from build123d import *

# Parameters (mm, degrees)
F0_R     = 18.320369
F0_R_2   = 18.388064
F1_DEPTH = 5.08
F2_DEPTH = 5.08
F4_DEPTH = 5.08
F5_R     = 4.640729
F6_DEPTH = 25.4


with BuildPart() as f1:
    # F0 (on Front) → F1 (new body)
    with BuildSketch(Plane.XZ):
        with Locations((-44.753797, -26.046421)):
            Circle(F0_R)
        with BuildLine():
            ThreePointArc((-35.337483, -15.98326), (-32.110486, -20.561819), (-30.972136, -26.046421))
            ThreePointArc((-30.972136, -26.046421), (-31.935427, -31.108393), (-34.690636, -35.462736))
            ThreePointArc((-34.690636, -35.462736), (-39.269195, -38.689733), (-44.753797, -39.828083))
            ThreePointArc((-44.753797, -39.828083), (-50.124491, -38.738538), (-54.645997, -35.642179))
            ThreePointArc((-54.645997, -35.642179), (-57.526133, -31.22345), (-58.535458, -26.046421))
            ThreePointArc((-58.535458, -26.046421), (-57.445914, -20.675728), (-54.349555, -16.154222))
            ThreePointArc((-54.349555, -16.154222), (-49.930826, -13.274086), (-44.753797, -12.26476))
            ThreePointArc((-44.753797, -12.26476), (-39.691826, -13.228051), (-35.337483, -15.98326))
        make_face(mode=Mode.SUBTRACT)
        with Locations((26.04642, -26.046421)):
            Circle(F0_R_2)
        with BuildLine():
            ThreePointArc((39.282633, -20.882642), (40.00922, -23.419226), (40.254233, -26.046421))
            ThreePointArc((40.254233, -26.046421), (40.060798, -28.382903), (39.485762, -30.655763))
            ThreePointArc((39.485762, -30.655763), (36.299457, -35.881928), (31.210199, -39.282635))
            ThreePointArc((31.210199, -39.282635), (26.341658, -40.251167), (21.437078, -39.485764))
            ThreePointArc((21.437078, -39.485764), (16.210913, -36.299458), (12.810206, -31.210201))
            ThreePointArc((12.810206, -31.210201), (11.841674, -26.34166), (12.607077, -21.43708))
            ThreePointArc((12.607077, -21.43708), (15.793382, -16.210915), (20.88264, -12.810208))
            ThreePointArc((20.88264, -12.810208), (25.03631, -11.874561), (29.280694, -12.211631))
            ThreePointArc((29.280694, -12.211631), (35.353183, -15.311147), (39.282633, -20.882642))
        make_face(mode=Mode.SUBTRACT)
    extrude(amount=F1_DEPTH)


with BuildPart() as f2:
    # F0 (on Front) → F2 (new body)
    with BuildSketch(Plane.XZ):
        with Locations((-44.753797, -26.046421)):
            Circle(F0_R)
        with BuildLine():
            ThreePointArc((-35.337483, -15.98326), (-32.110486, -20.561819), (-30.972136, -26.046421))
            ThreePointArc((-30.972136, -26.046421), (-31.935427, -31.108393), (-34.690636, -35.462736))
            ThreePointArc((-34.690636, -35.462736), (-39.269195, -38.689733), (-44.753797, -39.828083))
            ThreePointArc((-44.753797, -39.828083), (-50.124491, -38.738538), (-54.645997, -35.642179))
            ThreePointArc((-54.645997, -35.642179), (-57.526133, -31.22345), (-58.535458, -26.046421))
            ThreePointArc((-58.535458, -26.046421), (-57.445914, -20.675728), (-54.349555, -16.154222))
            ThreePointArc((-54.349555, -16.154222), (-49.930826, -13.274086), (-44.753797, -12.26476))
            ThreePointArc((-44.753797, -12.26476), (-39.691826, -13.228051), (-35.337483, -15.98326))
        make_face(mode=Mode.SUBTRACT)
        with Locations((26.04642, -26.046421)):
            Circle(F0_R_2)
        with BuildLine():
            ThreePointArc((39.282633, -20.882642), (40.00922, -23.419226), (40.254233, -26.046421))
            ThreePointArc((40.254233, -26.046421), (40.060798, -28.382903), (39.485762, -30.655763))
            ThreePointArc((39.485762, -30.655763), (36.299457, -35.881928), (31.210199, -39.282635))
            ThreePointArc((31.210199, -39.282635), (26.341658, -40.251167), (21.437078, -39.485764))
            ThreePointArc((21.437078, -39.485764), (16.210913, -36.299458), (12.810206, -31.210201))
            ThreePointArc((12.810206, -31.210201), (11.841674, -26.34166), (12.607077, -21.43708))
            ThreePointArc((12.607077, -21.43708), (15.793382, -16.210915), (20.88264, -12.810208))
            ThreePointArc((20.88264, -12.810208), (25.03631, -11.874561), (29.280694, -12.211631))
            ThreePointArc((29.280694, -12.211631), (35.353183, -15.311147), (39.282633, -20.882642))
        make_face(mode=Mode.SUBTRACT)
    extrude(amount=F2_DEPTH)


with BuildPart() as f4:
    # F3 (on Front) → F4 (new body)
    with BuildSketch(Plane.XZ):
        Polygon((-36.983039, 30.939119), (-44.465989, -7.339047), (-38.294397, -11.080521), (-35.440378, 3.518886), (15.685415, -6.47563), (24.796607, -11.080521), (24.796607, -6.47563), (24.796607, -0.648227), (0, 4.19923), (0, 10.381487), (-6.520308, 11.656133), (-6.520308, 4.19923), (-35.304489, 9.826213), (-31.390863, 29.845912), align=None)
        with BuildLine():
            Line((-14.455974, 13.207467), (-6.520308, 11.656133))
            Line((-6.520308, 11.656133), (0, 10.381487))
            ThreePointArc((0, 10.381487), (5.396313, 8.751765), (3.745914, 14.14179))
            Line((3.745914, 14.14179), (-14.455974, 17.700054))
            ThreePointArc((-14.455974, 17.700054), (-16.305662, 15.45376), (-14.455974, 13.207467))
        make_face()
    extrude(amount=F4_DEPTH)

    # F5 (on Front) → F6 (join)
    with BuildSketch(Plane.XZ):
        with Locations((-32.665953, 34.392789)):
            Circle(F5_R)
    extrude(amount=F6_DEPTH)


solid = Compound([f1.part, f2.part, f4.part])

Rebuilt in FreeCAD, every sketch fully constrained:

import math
import FreeCAD as App
import Part
import Sketcher
Q = App.Units.Quantity

doc = App.newDocument("Part")
body = doc.addObject("PartDesign::Body", "Body")
body.AllowCompound = True

sketch1 = doc.addObject("Sketcher::SketchObject", "Sketch")
body.addObject(sketch1)
sketch1.AttachmentSupport = (doc.XZ_Plane, [""])
sketch1.MapMode = "FlatFace"
sketch1.addGeometry(Part.Circle(App.Vector(-44.753797, -26.046421, 0), App.Vector(0, 0, 1), 18.320369), False)
sketch1.addGeometry(Part.ArcOfCircle(Part.Circle(App.Vector(-44.753801, -26.04643, 0), App.Vector(0, 0, 1), 13.78167), math.radians(46.901914), math.radians(89.999984)), False)
sketch1.addGeometry(Part.ArcOfCircle(Part.Circle(App.Vector(-44.7538, -26.046422, 0), App.Vector(0, 0, 1), 13.781664), math.radians(0.000005), math.radians(46.901894)), False)
sketch1.addGeometry(Part.ArcOfCircle(Part.Circle(App.Vector(-44.753806, -26.046418, 0), App.Vector(0, 0, 1), 13.78167), math.radians(-43.098086), math.radians(-0.000011)), False)
sketch1.addGeometry(Part.ArcOfCircle(Part.Circle(App.Vector(-44.753798, -26.046419, 0), App.Vector(0, 0, 1), 13.781664), math.radians(-89.999995), math.radians(-43.098106)), False)
sketch1.addGeometry(Part.ArcOfCircle(Part.Circle(App.Vector(-44.753794, -26.046416, 0), App.Vector(0, 0, 1), 13.781667), math.radians(-135.871484), math.radians(-90.000012)), False)
sketch1.addGeometry(Part.ArcOfCircle(Part.Circle(App.Vector(-44.753801, -26.046423, 0), App.Vector(0, 0, 1), 13.781657), math.radians(179.99999), math.radians(224.128515)), False)
sketch1.addGeometry(Part.ArcOfCircle(Part.Circle(App.Vector(-44.753798, -26.046421, 0), App.Vector(0, 0, 1), 13.78166), math.radians(134.128511), math.radians(179.999999)), False)
sketch1.addGeometry(Part.ArcOfCircle(Part.Circle(App.Vector(-44.753796, -26.046423, 0), App.Vector(0, 0, 1), 13.781663), math.radians(90.000006), math.radians(134.12851)), False)
sketch1.addGeometry(Part.Circle(App.Vector(26.04642, -26.046421, 0), App.Vector(0, 0, 1), 18.388064), False)
sketch1.addGeometry(Part.ArcOfCircle(Part.Circle(App.Vector(26.04642, -26.046421, 0), App.Vector(0, 0, 1), 14.207813), math.radians(21.312006), math.radians(76.841801)), False)
sketch1.addGeometry(Part.ArcOfCircle(Part.Circle(App.Vector(26.046396, -26.046426, 0), App.Vector(0, 0, 1), 14.207837), math.radians(0.000019), math.radians(21.311988)), False)
sketch1.addGeometry(Part.ArcOfCircle(Part.Circle(App.Vector(26.046395, -26.046417, 0), App.Vector(0, 0, 1), 14.207838), math.radians(-18.930609), math.radians(-0.000018)), False)
sketch1.addGeometry(Part.ArcOfCircle(Part.Circle(App.Vector(26.046421, -26.046423, 0), App.Vector(0, 0, 1), 14.207812), math.radians(-68.687995), math.radians(-18.930617)), False)
sketch1.addGeometry(Part.ArcOfCircle(Part.Circle(App.Vector(26.04642, -26.046421, 0), App.Vector(0, 0, 1), 14.207814), math.radians(-108.930623), math.radians(-68.687996)), False)
sketch1.addGeometry(Part.ArcOfCircle(Part.Circle(App.Vector(26.046423, -26.046417, 0), App.Vector(0, 0, 1), 14.207819), math.radians(-158.687982), math.radians(-108.93063)), False)
sketch1.addGeometry(Part.ArcOfCircle(Part.Circle(App.Vector(26.04642, -26.046422, 0), App.Vector(0, 0, 1), 14.207814), math.radians(161.069377), math.radians(201.312004)), False)
sketch1.addGeometry(Part.ArcOfCircle(Part.Circle(App.Vector(26.046418, -26.04642, 0), App.Vector(0, 0, 1), 14.207812), math.radians(111.312005), math.radians(161.069383)), False)
sketch1.addGeometry(Part.ArcOfCircle(Part.Circle(App.Vector(26.04642, -26.046431, 0), App.Vector(0, 0, 1), 14.207822), math.radians(76.841809), math.radians(111.311994)), False)
sketch1.addConstraint(Sketcher.Constraint("Coincident", 1, 1, 2, 2))
sketch1.addConstraint(Sketcher.Constraint("Coincident", 2, 1, 3, 2))
sketch1.addConstraint(Sketcher.Constraint("Coincident", 3, 1, 4, 2))
sketch1.addConstraint(Sketcher.Constraint("Coincident", 4, 1, 5, 2))
sketch1.addConstraint(Sketcher.Constraint("Coincident", 5, 1, 6, 2))
sketch1.addConstraint(Sketcher.Constraint("Coincident", 6, 1, 7, 2))
sketch1.addConstraint(Sketcher.Constraint("Coincident", 7, 1, 8, 2))
sketch1.addConstraint(Sketcher.Constraint("Coincident", 8, 1, 1, 2))
sketch1.addConstraint(Sketcher.Constraint("Coincident", 10, 1, 11, 2))
sketch1.addConstraint(Sketcher.Constraint("Coincident", 11, 1, 12, 2))
sketch1.addConstraint(Sketcher.Constraint("Coincident", 12, 1, 13, 2))
sketch1.addConstraint(Sketcher.Constraint("Coincident", 13, 1, 14, 2))
sketch1.addConstraint(Sketcher.Constraint("Coincident", 14, 1, 15, 2))
sketch1.addConstraint(Sketcher.Constraint("Coincident", 15, 1, 16, 2))
sketch1.addConstraint(Sketcher.Constraint("Coincident", 16, 1, 17, 2))
sketch1.addConstraint(Sketcher.Constraint("Coincident", 17, 1, 18, 2))
sketch1.addConstraint(Sketcher.Constraint("Coincident", 18, 1, 10, 2))
sketch1.addConstraint(Sketcher.Constraint("Coincident", 2, 3, 0, 3))
sketch1.addConstraint(Sketcher.Constraint("Coincident", 3, 3, 0, 3))
sketch1.addConstraint(Sketcher.Constraint("Coincident", 4, 3, 0, 3))
sketch1.addConstraint(Sketcher.Constraint("Coincident", 5, 3, 0, 3))
sketch1.addConstraint(Sketcher.Constraint("Coincident", 6, 3, 0, 3))
sketch1.addConstraint(Sketcher.Constraint("Coincident", 7, 3, 0, 3))
sketch1.addConstraint(Sketcher.Constraint("Coincident", 8, 3, 0, 3))
sketch1.addConstraint(Sketcher.Constraint("Coincident", 10, 3, 9, 3))
sketch1.addConstraint(Sketcher.Constraint("Coincident", 12, 3, 11, 3))
sketch1.addConstraint(Sketcher.Constraint("Coincident", 13, 3, 9, 3))
sketch1.addConstraint(Sketcher.Constraint("Coincident", 14, 3, 9, 3))
sketch1.addConstraint(Sketcher.Constraint("Coincident", 15, 3, 9, 3))
sketch1.addConstraint(Sketcher.Constraint("Coincident", 16, 3, 9, 3))
sketch1.addConstraint(Sketcher.Constraint("Coincident", 17, 3, 9, 3))
sketch1.addConstraint(Sketcher.Constraint("Coincident", 18, 3, 9, 3))
sketch1.addConstraint(Sketcher.Constraint("Radius", 1, 13.78167))
sketch1.addConstraint(Sketcher.Constraint("Radius", 3, 13.78167))
sketch1.addConstraint(Sketcher.Constraint("Radius", 13, 14.207812))
sketch1.addConstraint(Sketcher.Constraint("Diameter", 0, 36.640738))
sketch1.addConstraint(Sketcher.Constraint("Diameter", 9, 36.776128))
sketch1.addConstraint(Sketcher.Constraint("Radius", 11, 14.207837))
sketch1.addConstraint(Sketcher.Constraint("DistanceX", 1, 3, -1, 1, 44.753801))
sketch1.addConstraint(Sketcher.Constraint("DistanceX", -1, 1, 13, 1, 31.210199))
sketch1.addConstraint(Sketcher.Constraint("DistanceY", 15, 1, -1, 1, 31.210201))
sketch1.addConstraint(Sketcher.Constraint("DistanceX", 3, 1, 2, 1, 3.7185))
sketch1.addConstraint(Sketcher.Constraint("DistanceX", 5, 1, 4, 1, 9.8922))
sketch1.addConstraint(Sketcher.Constraint("DistanceY", 6, 1, 7, 1, 9.892199))
sketch1.addConstraint(Sketcher.Constraint("DistanceY", 6, 3, 7, 1, 9.892201))
sketch1.addConstraint(Sketcher.Constraint("DistanceY", 1, 1, 8, 1, 3.7185))
sketch1.addConstraint(Sketcher.Constraint("DistanceX", 10, 1, 11, 1, 0.9716))
sketch1.addConstraint(Sketcher.Constraint("DistanceY", 0, 3, -1, 1, 26.046421))
sketch1.addConstraint(Sketcher.Constraint("DistanceX", -1, 1, 9, 3, 26.04642))
sketch1.addConstraint(Sketcher.Constraint("DistanceY", 9, 3, -1, 1, 26.046421))
sketch1.addConstraint(Sketcher.Constraint("DistanceY", 2, 1, -1, 1, 26.046421))
sketch1.addConstraint(Sketcher.Constraint("DistanceY", 5, 1, -1, 1, 35.642179))
sketch1.addConstraint(Sketcher.Constraint("DistanceY", 11, 1, -1, 1, 26.046421))
sketch1.addConstraint(Sketcher.Constraint("DistanceX", -1, 1, 14, 1, 21.437078))
sketch1.addConstraint(Sketcher.Constraint("DistanceY", 16, 1, -1, 1, 21.43708))
sketch1.addConstraint(Sketcher.Constraint("DistanceX", -1, 1, 17, 1, 20.88264))
sketch1.addConstraint(Sketcher.Constraint("DistanceY", 18, 1, -1, 1, 12.211631))
sketch1.addConstraint(Sketcher.Constraint("DistanceX", 7, 1, 8, 1, 9.595758))
sketch1.addConstraint(Sketcher.Constraint("DistanceX", 12, 1, 11, 1, 0.768471))
pad1 = doc.addObject("PartDesign::Pad", "Pad")
body.addObject(pad1)
pad1.Profile = sketch1
pad1.Length = Q("0.2 in")
body2 = doc.addObject("PartDesign::Body", "Body001")
body2.AllowCompound = True

sketch2 = doc.addObject("Sketcher::SketchObject", "Sketch001")
body2.addObject(sketch2)
sketch2.AttachmentSupport = (doc.getObject("XZ_Plane001"), [""])
sketch2.MapMode = "FlatFace"
sketch2.addGeometry(Part.Circle(App.Vector(-44.753797, -26.046421, 0), App.Vector(0, 0, 1), 18.320369), False)
sketch2.addGeometry(Part.ArcOfCircle(Part.Circle(App.Vector(-44.753801, -26.04643, 0), App.Vector(0, 0, 1), 13.78167), math.radians(46.901914), math.radians(89.999984)), False)
sketch2.addGeometry(Part.ArcOfCircle(Part.Circle(App.Vector(-44.7538, -26.046422, 0), App.Vector(0, 0, 1), 13.781664), math.radians(0.000005), math.radians(46.901894)), False)
sketch2.addGeometry(Part.ArcOfCircle(Part.Circle(App.Vector(-44.753806, -26.046418, 0), App.Vector(0, 0, 1), 13.78167), math.radians(-43.098086), math.radians(-0.000011)), False)
sketch2.addGeometry(Part.ArcOfCircle(Part.Circle(App.Vector(-44.753798, -26.046419, 0), App.Vector(0, 0, 1), 13.781664), math.radians(-89.999995), math.radians(-43.098106)), False)
sketch2.addGeometry(Part.ArcOfCircle(Part.Circle(App.Vector(-44.753794, -26.046416, 0), App.Vector(0, 0, 1), 13.781667), math.radians(-135.871484), math.radians(-90.000012)), False)
sketch2.addGeometry(Part.ArcOfCircle(Part.Circle(App.Vector(-44.753801, -26.046423, 0), App.Vector(0, 0, 1), 13.781657), math.radians(179.99999), math.radians(224.128515)), False)
sketch2.addGeometry(Part.ArcOfCircle(Part.Circle(App.Vector(-44.753798, -26.046421, 0), App.Vector(0, 0, 1), 13.78166), math.radians(134.128511), math.radians(179.999999)), False)
sketch2.addGeometry(Part.ArcOfCircle(Part.Circle(App.Vector(-44.753796, -26.046423, 0), App.Vector(0, 0, 1), 13.781663), math.radians(90.000006), math.radians(134.12851)), False)
sketch2.addGeometry(Part.Circle(App.Vector(26.04642, -26.046421, 0), App.Vector(0, 0, 1), 18.388064), False)
sketch2.addGeometry(Part.ArcOfCircle(Part.Circle(App.Vector(26.04642, -26.046421, 0), App.Vector(0, 0, 1), 14.207813), math.radians(21.312006), math.radians(76.841801)), False)
sketch2.addGeometry(Part.ArcOfCircle(Part.Circle(App.Vector(26.046396, -26.046426, 0), App.Vector(0, 0, 1), 14.207837), math.radians(0.000019), math.radians(21.311988)), False)
sketch2.addGeometry(Part.ArcOfCircle(Part.Circle(App.Vector(26.046395, -26.046417, 0), App.Vector(0, 0, 1), 14.207838), math.radians(-18.930609), math.radians(-0.000018)), False)
sketch2.addGeometry(Part.ArcOfCircle(Part.Circle(App.Vector(26.046421, -26.046423, 0), App.Vector(0, 0, 1), 14.207812), math.radians(-68.687995), math.radians(-18.930617)), False)
sketch2.addGeometry(Part.ArcOfCircle(Part.Circle(App.Vector(26.04642, -26.046421, 0), App.Vector(0, 0, 1), 14.207814), math.radians(-108.930623), math.radians(-68.687996)), False)
sketch2.addGeometry(Part.ArcOfCircle(Part.Circle(App.Vector(26.046423, -26.046417, 0), App.Vector(0, 0, 1), 14.207819), math.radians(-158.687982), math.radians(-108.93063)), False)
sketch2.addGeometry(Part.ArcOfCircle(Part.Circle(App.Vector(26.04642, -26.046422, 0), App.Vector(0, 0, 1), 14.207814), math.radians(161.069377), math.radians(201.312004)), False)
sketch2.addGeometry(Part.ArcOfCircle(Part.Circle(App.Vector(26.046418, -26.04642, 0), App.Vector(0, 0, 1), 14.207812), math.radians(111.312005), math.radians(161.069383)), False)
sketch2.addGeometry(Part.ArcOfCircle(Part.Circle(App.Vector(26.04642, -26.046431, 0), App.Vector(0, 0, 1), 14.207822), math.radians(76.841809), math.radians(111.311994)), False)
sketch2.addConstraint(Sketcher.Constraint("Coincident", 1, 1, 2, 2))
sketch2.addConstraint(Sketcher.Constraint("Coincident", 2, 1, 3, 2))
sketch2.addConstraint(Sketcher.Constraint("Coincident", 3, 1, 4, 2))
sketch2.addConstraint(Sketcher.Constraint("Coincident", 4, 1, 5, 2))
sketch2.addConstraint(Sketcher.Constraint("Coincident", 5, 1, 6, 2))
sketch2.addConstraint(Sketcher.Constraint("Coincident", 6, 1, 7, 2))
sketch2.addConstraint(Sketcher.Constraint("Coincident", 7, 1, 8, 2))
sketch2.addConstraint(Sketcher.Constraint("Coincident", 8, 1, 1, 2))
sketch2.addConstraint(Sketcher.Constraint("Coincident", 10, 1, 11, 2))
sketch2.addConstraint(Sketcher.Constraint("Coincident", 11, 1, 12, 2))
sketch2.addConstraint(Sketcher.Constraint("Coincident", 12, 1, 13, 2))
sketch2.addConstraint(Sketcher.Constraint("Coincident", 13, 1, 14, 2))
sketch2.addConstraint(Sketcher.Constraint("Coincident", 14, 1, 15, 2))
sketch2.addConstraint(Sketcher.Constraint("Coincident", 15, 1, 16, 2))
sketch2.addConstraint(Sketcher.Constraint("Coincident", 16, 1, 17, 2))
sketch2.addConstraint(Sketcher.Constraint("Coincident", 17, 1, 18, 2))
sketch2.addConstraint(Sketcher.Constraint("Coincident", 18, 1, 10, 2))
sketch2.addConstraint(Sketcher.Constraint("Coincident", 2, 3, 0, 3))
sketch2.addConstraint(Sketcher.Constraint("Coincident", 3, 3, 0, 3))
sketch2.addConstraint(Sketcher.Constraint("Coincident", 4, 3, 0, 3))
sketch2.addConstraint(Sketcher.Constraint("Coincident", 5, 3, 0, 3))
sketch2.addConstraint(Sketcher.Constraint("Coincident", 6, 3, 0, 3))
sketch2.addConstraint(Sketcher.Constraint("Coincident", 7, 3, 0, 3))
sketch2.addConstraint(Sketcher.Constraint("Coincident", 8, 3, 0, 3))
sketch2.addConstraint(Sketcher.Constraint("Coincident", 10, 3, 9, 3))
sketch2.addConstraint(Sketcher.Constraint("Coincident", 12, 3, 11, 3))
sketch2.addConstraint(Sketcher.Constraint("Coincident", 13, 3, 9, 3))
sketch2.addConstraint(Sketcher.Constraint("Coincident", 14, 3, 9, 3))
sketch2.addConstraint(Sketcher.Constraint("Coincident", 15, 3, 9, 3))
sketch2.addConstraint(Sketcher.Constraint("Coincident", 16, 3, 9, 3))
sketch2.addConstraint(Sketcher.Constraint("Coincident", 17, 3, 9, 3))
sketch2.addConstraint(Sketcher.Constraint("Coincident", 18, 3, 9, 3))
sketch2.addConstraint(Sketcher.Constraint("Radius", 1, 13.78167))
sketch2.addConstraint(Sketcher.Constraint("Radius", 3, 13.78167))
sketch2.addConstraint(Sketcher.Constraint("Radius", 13, 14.207812))
sketch2.addConstraint(Sketcher.Constraint("Diameter", 0, 36.640738))
sketch2.addConstraint(Sketcher.Constraint("Diameter", 9, 36.776128))
sketch2.addConstraint(Sketcher.Constraint("Radius", 11, 14.207837))
sketch2.addConstraint(Sketcher.Constraint("DistanceX", 1, 3, -1, 1, 44.753801))
sketch2.addConstraint(Sketcher.Constraint("DistanceX", -1, 1, 13, 1, 31.210199))
sketch2.addConstraint(Sketcher.Constraint("DistanceY", 15, 1, -1, 1, 31.210201))
sketch2.addConstraint(Sketcher.Constraint("DistanceX", 3, 1, 2, 1, 3.7185))
sketch2.addConstraint(Sketcher.Constraint("DistanceX", 5, 1, 4, 1, 9.8922))
sketch2.addConstraint(Sketcher.Constraint("DistanceY", 6, 1, 7, 1, 9.892199))
sketch2.addConstraint(Sketcher.Constraint("DistanceY", 6, 3, 7, 1, 9.892201))
sketch2.addConstraint(Sketcher.Constraint("DistanceY", 1, 1, 8, 1, 3.7185))
sketch2.addConstraint(Sketcher.Constraint("DistanceX", 10, 1, 11, 1, 0.9716))
sketch2.addConstraint(Sketcher.Constraint("DistanceY", 0, 3, -1, 1, 26.046421))
sketch2.addConstraint(Sketcher.Constraint("DistanceX", -1, 1, 9, 3, 26.04642))
sketch2.addConstraint(Sketcher.Constraint("DistanceY", 9, 3, -1, 1, 26.046421))
sketch2.addConstraint(Sketcher.Constraint("DistanceY", 2, 1, -1, 1, 26.046421))
sketch2.addConstraint(Sketcher.Constraint("DistanceY", 5, 1, -1, 1, 35.642179))
sketch2.addConstraint(Sketcher.Constraint("DistanceY", 11, 1, -1, 1, 26.046421))
sketch2.addConstraint(Sketcher.Constraint("DistanceX", -1, 1, 14, 1, 21.437078))
sketch2.addConstraint(Sketcher.Constraint("DistanceY", 16, 1, -1, 1, 21.43708))
sketch2.addConstraint(Sketcher.Constraint("DistanceX", -1, 1, 17, 1, 20.88264))
sketch2.addConstraint(Sketcher.Constraint("DistanceY", 18, 1, -1, 1, 12.211631))
sketch2.addConstraint(Sketcher.Constraint("DistanceX", 7, 1, 8, 1, 9.595758))
sketch2.addConstraint(Sketcher.Constraint("DistanceX", 12, 1, 11, 1, 0.768471))
pad2 = doc.addObject("PartDesign::Pad", "Pad001")
body2.addObject(pad2)
pad2.Profile = sketch2
pad2.Length = Q("0.2 in")
body3 = doc.addObject("PartDesign::Body", "Body002")

sketch3 = doc.addObject("Sketcher::SketchObject", "Sketch002")
body3.addObject(sketch3)
sketch3.AttachmentSupport = (doc.getObject("XZ_Plane002"), [""])
sketch3.MapMode = "FlatFace"
sketch3.addGeometry(Part.LineSegment(App.Vector(-37, 30.9, 0), App.Vector(-44.5, -7.3, 0)), False)
sketch3.addGeometry(Part.LineSegment(App.Vector(-44.5, -7.3, 0), App.Vector(-38.3, -11.1, 0)), False)
sketch3.addGeometry(Part.LineSegment(App.Vector(-38.3, -11.1, 0), App.Vector(-35.4, 3.5, 0)), False)
sketch3.addGeometry(Part.LineSegment(App.Vector(-35.4, 3.5, 0), App.Vector(15.7, -6.5, 0)), False)
sketch3.addGeometry(Part.LineSegment(App.Vector(15.7, -6.5, 0), App.Vector(24.8, -11.1, 0)), False)
sketch3.addGeometry(Part.LineSegment(App.Vector(24.8, -11.1, 0), App.Vector(24.8, -0.6, 0)), False)
sketch3.addGeometry(Part.LineSegment(App.Vector(24.8, -0.6, 0), App.Vector(0, 4.2, 0)), False)
sketch3.addGeometry(Part.LineSegment(App.Vector(0, 4.2, 0), App.Vector(0, 10.4, 0)), False)
sketch3.addGeometry(Part.ArcOfCircle(Part.Circle(App.Vector(3.1, 11, 0), App.Vector(0, 0, 1), 3.2), math.radians(-169), math.radians(79)), False)
sketch3.addGeometry(Part.LineSegment(App.Vector(3.7, 14.1, 0), App.Vector(-14.5, 17.7, 0)), False)
sketch3.addGeometry(Part.ArcOfCircle(Part.Circle(App.Vector(-14, 15.5, 0), App.Vector(0, 0, 1), 2.3), math.radians(101), math.radians(259)), False)
sketch3.addGeometry(Part.LineSegment(App.Vector(-14.5, 13.2, 0), App.Vector(-6.5, 11.7, 0)), False)
sketch3.addGeometry(Part.LineSegment(App.Vector(-6.5, 11.7, 0), App.Vector(-6.5, 4.2, 0)), False)
sketch3.addGeometry(Part.LineSegment(App.Vector(-6.5, 4.2, 0), App.Vector(-35.3, 9.8, 0)), False)
sketch3.addGeometry(Part.LineSegment(App.Vector(-35.3, 9.8, 0), App.Vector(-31.4, 29.8, 0)), False)
sketch3.addGeometry(Part.LineSegment(App.Vector(-31.4, 29.8, 0), App.Vector(-37, 30.9, 0)), False)
sketch3.addConstraint(Sketcher.Constraint("Coincident", 0, 2, 1, 1))
sketch3.addConstraint(Sketcher.Constraint("Coincident", 1, 2, 2, 1))
sketch3.addConstraint(Sketcher.Constraint("Coincident", 2, 2, 3, 1))
sketch3.addConstraint(Sketcher.Constraint("Coincident", 3, 2, 4, 1))
sketch3.addConstraint(Sketcher.Constraint("Coincident", 4, 2, 5, 1))
sketch3.addConstraint(Sketcher.Constraint("Coincident", 5, 2, 6, 1))
sketch3.addConstraint(Sketcher.Constraint("Coincident", 6, 2, 7, 1))
sketch3.addConstraint(Sketcher.Constraint("Coincident", 7, 2, 8, 1))
sketch3.addConstraint(Sketcher.Constraint("Tangent", 8, 2, 9, 1))
sketch3.addConstraint(Sketcher.Constraint("Coincident", 9, 2, 10, 1))
sketch3.addConstraint(Sketcher.Constraint("Tangent", 10, 2, 11, 1))
sketch3.addConstraint(Sketcher.Constraint("Coincident", 11, 2, 12, 1))
sketch3.addConstraint(Sketcher.Constraint("Coincident", 12, 2, 13, 1))
sketch3.addConstraint(Sketcher.Constraint("Coincident", 13, 2, 14, 1))
sketch3.addConstraint(Sketcher.Constraint("Coincident", 14, 2, 15, 1))
sketch3.addConstraint(Sketcher.Constraint("Coincident", 15, 2, 0, 1))
sketch3.addConstraint(Sketcher.Constraint("Vertical", 5))
sketch3.addConstraint(Sketcher.Constraint("Vertical", 7))
sketch3.addConstraint(Sketcher.Constraint("Vertical", 12))
sketch3.addConstraint(Sketcher.Constraint("PointOnObject", 6, 2, -2))
sketch3.addConstraint(Sketcher.Constraint("Parallel", 0, 2))
sketch3.addConstraint(Sketcher.Constraint("Perpendicular", 2, 3))
sketch3.addConstraint(Sketcher.Constraint("Parallel", 3, 6))
sketch3.addConstraint(Sketcher.Constraint("Parallel", 6, 9))
sketch3.addConstraint(Sketcher.Constraint("Parallel", 9, 11))
sketch3.addConstraint(Sketcher.Constraint("Parallel", 11, 13))
sketch3.addConstraint(Sketcher.Constraint("Perpendicular", 13, 14))
sketch3.addConstraint(Sketcher.Constraint("Perpendicular", 14, 15))
sketch3.addConstraint(Sketcher.Constraint("Horizontal", 1, 2, 4, 2))
sketch3.addConstraint(Sketcher.Constraint("Horizontal", 6, 2, 12, 2))
sketch3.addConstraint(Sketcher.Constraint("Vertical", 9, 2, 10, 2))
sketch3.addConstraint(Sketcher.Constraint("Radius", 8, 3.194708))
sketch3.addConstraint(Sketcher.Constraint("DistanceY", 6, 2, 8, 3, Q("0.268 in")))
sketch3.addConstraint(Sketcher.Constraint("Radius", 10, 2.288813))
sketch3.addConstraint(Sketcher.Constraint("DistanceX", 8, 2, 3, 2, 11.939501))
sketch3.addConstraint(Sketcher.Constraint("DistanceX", 0, 2, 13, 2, 9.1615))
sketch3.addConstraint(Sketcher.Constraint("DistanceY", 13, 2, 14, 2, 20.019699))
sketch3.addConstraint(Sketcher.Constraint("Distance", 3, 52.093541))
sketch3.addConstraint(Sketcher.Constraint("Distance", 11, 8.085879))
sketch3.addConstraint(Sketcher.Constraint("Distance", 13, 29.32903))
sketch3.addConstraint(Sketcher.Constraint("Distance", 15, 5.698029))
sketch3.addConstraint(Sketcher.Constraint("DistanceY", 5, 1, 5, 2, 10.432294))
sketch3.addConstraint(Sketcher.Constraint("DistanceY", 7, 1, 7, 2, 6.182257))
sketch3.addConstraint(Sketcher.Constraint("DistanceY", 12, 2, 12, 1, 7.456903))
sketch3.addConstraint(Sketcher.Constraint("DistanceY", -1, 1, 8, 3, 11.00643))
sketch3.addConstraint(Sketcher.Constraint("DistanceX", 10, 3, -1, 1, 14.016849))
sketch3.addConstraint(Sketcher.Constraint("DistanceY", 1, 2, -1, 1, 11.080521))
sketch3.addConstraint(Sketcher.Constraint("DistanceY", 3, 2, -1, 1, 6.47563))
pad3 = doc.addObject("PartDesign::Pad", "Pad002")
body3.addObject(pad3)
pad3.Profile = sketch3
pad3.Length = Q("0.2 in")

sketch4 = doc.addObject("Sketcher::SketchObject", "Sketch003")
body3.addObject(sketch4)
sketch4.AttachmentSupport = (doc.getObject("XZ_Plane002"), [""])
sketch4.MapMode = "FlatFace"
sketch4.addGeometry(Part.Circle(App.Vector(-32.7, 34.4, 0), App.Vector(0, 0, 1), 4.6), False)
sketch4.addConstraint(Sketcher.Constraint("Diameter", 0, 9.281458))
sketch4.addConstraint(Sketcher.Constraint("DistanceY", -1, 1, 0, 3, 34.392789))
sketch4.addConstraint(Sketcher.Constraint("DistanceX", 0, 3, -1, 1, 32.665953))
pad4 = doc.addObject("PartDesign::Pad", "Pad003")
body3.addObject(pad4)
pad4.Profile = sketch4
pad4.Length = Q("1 in")

doc.recompute()
